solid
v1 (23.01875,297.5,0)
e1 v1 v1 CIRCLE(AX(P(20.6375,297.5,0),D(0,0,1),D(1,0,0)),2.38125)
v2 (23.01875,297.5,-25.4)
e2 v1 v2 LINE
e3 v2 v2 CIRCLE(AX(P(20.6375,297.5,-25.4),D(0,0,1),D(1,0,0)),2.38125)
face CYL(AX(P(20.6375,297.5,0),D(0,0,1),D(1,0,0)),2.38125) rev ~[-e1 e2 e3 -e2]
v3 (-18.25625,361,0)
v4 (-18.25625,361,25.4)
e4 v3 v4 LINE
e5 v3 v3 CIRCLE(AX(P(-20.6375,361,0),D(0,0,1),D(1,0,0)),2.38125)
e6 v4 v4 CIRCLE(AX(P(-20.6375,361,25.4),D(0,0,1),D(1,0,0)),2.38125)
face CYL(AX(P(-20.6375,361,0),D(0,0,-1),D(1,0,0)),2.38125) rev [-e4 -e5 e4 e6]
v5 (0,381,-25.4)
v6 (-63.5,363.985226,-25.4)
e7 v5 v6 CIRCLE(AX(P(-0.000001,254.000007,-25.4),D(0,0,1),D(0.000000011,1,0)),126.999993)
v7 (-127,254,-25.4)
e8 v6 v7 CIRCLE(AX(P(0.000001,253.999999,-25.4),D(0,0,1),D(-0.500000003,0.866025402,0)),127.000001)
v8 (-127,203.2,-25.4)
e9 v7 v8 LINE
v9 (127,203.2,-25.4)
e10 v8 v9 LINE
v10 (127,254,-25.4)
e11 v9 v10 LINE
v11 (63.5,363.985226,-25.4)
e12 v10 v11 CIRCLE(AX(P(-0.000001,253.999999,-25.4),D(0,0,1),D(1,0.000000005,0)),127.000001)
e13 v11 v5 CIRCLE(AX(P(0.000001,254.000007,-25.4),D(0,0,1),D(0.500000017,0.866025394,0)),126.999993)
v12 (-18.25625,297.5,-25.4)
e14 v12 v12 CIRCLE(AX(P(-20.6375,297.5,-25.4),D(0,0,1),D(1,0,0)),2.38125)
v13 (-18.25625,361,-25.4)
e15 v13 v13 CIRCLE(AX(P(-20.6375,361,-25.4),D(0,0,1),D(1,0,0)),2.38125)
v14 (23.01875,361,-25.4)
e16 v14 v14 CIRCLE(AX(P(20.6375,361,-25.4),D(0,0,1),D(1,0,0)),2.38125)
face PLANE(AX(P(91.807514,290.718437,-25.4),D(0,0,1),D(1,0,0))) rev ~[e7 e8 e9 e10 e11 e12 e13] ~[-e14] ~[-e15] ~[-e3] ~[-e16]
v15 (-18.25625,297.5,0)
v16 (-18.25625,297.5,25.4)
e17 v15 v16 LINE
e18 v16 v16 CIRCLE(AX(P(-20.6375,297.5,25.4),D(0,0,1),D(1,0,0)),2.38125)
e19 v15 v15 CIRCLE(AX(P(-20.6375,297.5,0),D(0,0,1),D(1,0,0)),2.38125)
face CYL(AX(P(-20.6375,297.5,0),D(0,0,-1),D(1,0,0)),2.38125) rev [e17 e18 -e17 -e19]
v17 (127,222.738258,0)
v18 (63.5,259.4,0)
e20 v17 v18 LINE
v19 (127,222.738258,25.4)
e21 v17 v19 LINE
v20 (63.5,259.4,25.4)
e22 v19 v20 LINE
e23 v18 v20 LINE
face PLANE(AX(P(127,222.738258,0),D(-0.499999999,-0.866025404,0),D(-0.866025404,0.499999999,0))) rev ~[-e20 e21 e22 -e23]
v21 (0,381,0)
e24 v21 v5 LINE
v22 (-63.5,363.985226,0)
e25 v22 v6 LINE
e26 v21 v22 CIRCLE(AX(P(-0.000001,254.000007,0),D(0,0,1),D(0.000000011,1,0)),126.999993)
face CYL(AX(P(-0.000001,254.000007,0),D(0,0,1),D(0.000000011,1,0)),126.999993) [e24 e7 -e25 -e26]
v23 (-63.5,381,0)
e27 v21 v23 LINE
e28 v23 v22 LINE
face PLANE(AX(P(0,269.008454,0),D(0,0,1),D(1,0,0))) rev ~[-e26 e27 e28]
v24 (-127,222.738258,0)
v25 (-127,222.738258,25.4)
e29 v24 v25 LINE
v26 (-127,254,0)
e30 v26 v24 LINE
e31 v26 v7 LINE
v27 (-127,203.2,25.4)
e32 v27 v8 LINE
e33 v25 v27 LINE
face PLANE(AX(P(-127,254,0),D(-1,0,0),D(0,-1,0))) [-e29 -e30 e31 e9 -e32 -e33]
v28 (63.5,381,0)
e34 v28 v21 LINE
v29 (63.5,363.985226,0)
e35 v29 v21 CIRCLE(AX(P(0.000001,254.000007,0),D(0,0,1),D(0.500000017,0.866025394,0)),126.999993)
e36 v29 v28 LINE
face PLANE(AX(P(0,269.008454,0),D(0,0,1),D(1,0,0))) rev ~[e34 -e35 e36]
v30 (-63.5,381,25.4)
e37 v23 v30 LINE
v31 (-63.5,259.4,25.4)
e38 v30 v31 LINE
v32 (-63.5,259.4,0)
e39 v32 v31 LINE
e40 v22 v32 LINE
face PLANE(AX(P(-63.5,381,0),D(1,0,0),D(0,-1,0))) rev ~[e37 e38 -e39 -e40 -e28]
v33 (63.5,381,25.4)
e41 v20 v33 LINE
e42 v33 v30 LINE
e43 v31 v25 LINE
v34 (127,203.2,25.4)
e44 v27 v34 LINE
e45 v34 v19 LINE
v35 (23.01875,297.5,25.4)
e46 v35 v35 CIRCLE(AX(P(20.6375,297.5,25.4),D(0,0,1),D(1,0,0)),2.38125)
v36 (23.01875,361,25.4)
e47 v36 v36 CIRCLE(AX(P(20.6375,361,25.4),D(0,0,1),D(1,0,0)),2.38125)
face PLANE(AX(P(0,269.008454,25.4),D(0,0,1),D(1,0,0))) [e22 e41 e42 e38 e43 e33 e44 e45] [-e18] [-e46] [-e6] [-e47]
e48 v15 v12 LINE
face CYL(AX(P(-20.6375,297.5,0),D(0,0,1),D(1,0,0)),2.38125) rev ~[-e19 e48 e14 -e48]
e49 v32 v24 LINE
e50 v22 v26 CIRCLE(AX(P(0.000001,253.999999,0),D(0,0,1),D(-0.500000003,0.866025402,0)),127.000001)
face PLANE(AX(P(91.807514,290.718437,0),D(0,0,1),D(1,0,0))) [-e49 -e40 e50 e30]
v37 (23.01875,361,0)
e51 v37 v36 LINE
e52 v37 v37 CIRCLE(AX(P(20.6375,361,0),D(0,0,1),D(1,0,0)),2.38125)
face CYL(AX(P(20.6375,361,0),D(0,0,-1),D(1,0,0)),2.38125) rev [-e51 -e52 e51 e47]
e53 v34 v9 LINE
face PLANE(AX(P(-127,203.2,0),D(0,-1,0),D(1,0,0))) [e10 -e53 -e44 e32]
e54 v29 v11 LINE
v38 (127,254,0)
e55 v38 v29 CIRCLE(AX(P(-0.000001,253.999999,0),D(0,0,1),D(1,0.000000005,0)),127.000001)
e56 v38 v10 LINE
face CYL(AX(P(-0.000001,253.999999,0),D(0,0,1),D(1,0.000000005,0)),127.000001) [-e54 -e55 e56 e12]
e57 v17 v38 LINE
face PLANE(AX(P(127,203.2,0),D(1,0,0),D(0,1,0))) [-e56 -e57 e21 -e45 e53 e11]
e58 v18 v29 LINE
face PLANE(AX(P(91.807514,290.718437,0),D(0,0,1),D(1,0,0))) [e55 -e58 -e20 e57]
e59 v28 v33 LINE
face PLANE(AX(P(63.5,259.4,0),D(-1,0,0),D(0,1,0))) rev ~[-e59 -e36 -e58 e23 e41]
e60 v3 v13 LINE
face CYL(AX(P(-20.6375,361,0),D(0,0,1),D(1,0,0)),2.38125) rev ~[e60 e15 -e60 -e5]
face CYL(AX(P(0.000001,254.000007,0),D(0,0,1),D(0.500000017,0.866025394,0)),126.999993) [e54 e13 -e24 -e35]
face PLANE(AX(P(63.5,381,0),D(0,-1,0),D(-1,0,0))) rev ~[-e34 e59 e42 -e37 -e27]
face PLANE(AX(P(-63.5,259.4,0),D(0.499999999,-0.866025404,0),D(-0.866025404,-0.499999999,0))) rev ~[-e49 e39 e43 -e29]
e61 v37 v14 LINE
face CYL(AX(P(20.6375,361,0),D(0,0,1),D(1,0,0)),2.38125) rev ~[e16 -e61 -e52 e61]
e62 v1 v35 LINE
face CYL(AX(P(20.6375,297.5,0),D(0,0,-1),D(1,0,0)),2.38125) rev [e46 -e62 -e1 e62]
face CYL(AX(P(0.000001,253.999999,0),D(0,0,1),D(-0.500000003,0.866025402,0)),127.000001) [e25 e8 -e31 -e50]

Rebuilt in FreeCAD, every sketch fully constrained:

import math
import FreeCAD as App
import Part
import Sketcher
Q = App.Units.Quantity

doc = App.newDocument("Part")
body = doc.addObject("PartDesign::Body", "Body")

# Sketch on XY plane
sketch1 = body.newObject("Sketcher::SketchObject", "Sketch")
sketch1.AttachmentSupport = (doc.getObject("XY_Plane"), [""])
sketch1.MapMode = "FlatFace"
sketch1.addGeometry([
    Part.LineSegment(App.Vector(-63.5, 381, 0), App.Vector(-63.5, 259.4, 0)),  # 0
    Part.LineSegment(App.Vector(-63.5, 259.4, 0), App.Vector(-127, 222.7, 0)),  # 1
    Part.LineSegment(App.Vector(-127, 222.7, 0), App.Vector(-127, 203.2, 0)),  # 2
    Part.LineSegment(App.Vector(-127, 203.2, 0), App.Vector(127, 203.2, 0)),  # 3
    Part.LineSegment(App.Vector(127, 203.2, 0), App.Vector(127, 222.7, 0)),  # 4
    Part.LineSegment(App.Vector(127, 222.7, 0), App.Vector(63.5, 259.4, 0)),  # 5
    Part.LineSegment(App.Vector(63.5, 259.4, 0), App.Vector(63.5, 381, 0)),  # 6
    Part.LineSegment(App.Vector(63.5, 381, 0), App.Vector(-63.5, 381, 0)),  # 7
    Part.Circle(App.Vector(-20.6, 297.5, 0), App.Vector(0, 0, 1), 2.4),  # 8
    Part.Circle(App.Vector(20.6, 297.5, 0), App.Vector(0, 0, 1), 2.4),  # 9
    Part.Circle(App.Vector(-20.6, 361, 0), App.Vector(0, 0, 1), 2.4),  # 10
    Part.Circle(App.Vector(20.6, 361, 0), App.Vector(0, 0, 1), 2.4),  # 11
], False)
sketch1.addConstraint([
    Sketcher.Constraint("Coincident", 0, 2, 1, 1),
    Sketcher.Constraint("Coincident", 1, 2, 2, 1),
    Sketcher.Constraint("Coincident", 2, 2, 3, 1),
    Sketcher.Constraint("Coincident", 3, 2, 4, 1),
    Sketcher.Constraint("Coincident", 4, 2, 5, 1),
    Sketcher.Constraint("Coincident", 5, 2, 6, 1),
    Sketcher.Constraint("Coincident", 6, 2, 7, 1),
    Sketcher.Constraint("Coincident", 7, 2, 0, 1),
    Sketcher.Constraint("Vertical", 0),
    Sketcher.Constraint("Vertical", 2),
    Sketcher.Constraint("Horizontal", 3),
    Sketcher.Constraint("Vertical", 4),
    Sketcher.Constraint("Vertical", 6),
    Sketcher.Constraint("Horizontal", 7),
    Sketcher.Constraint("Equal", 8, 9),
    Sketcher.Constraint("Equal", 9, 10),
    Sketcher.Constraint("Equal", 10, 11),
    Sketcher.Constraint("Symmetric", 8, 3, 9, 3, -2),
    Sketcher.Constraint("Symmetric", 10, 3, 11, 3, -2),
    Sketcher.Constraint("Symmetric", 1, 2, 4, 2, -2),
    Sketcher.Constraint("Symmetric", 0, 2, 5, 2, -2),
    Sketcher.Constraint("Vertical", 8, 3, 10, 3),
    Sketcher.Constraint("DistanceX", 3, 1, 3, 2, Q("10 in")),
    Sketcher.Constraint("DistanceX", 7, 2, 7, 1, Q("5 in")),
    Sketcher.Constraint("Diameter", 8, Q("0.1875 in")),
    Sketcher.Constraint("DistanceY", -1, 1, 2, 2, Q("8 in")),
    Sketcher.Constraint("DistanceY", -1, 1, 6, 2, Q("15 in")),
    Sketcher.Constraint("Angle", 1, Q("-150 deg")),
    Sketcher.Constraint("DistanceY", 0, 2, 10, 3, Q("4 in")),
    Sketcher.Constraint("DistanceY", 8, 3, 10, 3, Q("2.5 in")),
    Sketcher.Constraint("DistanceX", 8, 3, -1, 1, Q("0.8125 in")),
    Sketcher.Constraint("DistanceY", 0, 2, 0, 1, Q("121.6 mm")),
])
pad1 = body.newObject("PartDesign::Pad", "Pad")
pad1.Profile = sketch1
pad1.Length = Q("1 in")

# Sketch on XY plane
sketch2 = body.newObject("Sketcher::SketchObject", "Sketch001")
sketch2.AttachmentSupport = (doc.getObject("XY_Plane"), [""])
sketch2.MapMode = "FlatFace"
sketch2.addGeometry([
    Part.ArcOfCircle(Part.Circle(App.Vector(0, 254, 0), App.Vector(0, 0, 1), 127), math.radians(0), math.radians(60)),  # 0
    Part.ArcOfCircle(Part.Circle(App.Vector(0, 254, 0), App.Vector(0, 0, 1), 127), math.radians(60), math.radians(90)),  # 1
    Part.ArcOfCircle(Part.Circle(App.Vector(0, 254, 0), App.Vector(0, 0, 1), 127), math.radians(90), math.radians(120)),  # 2
    Part.ArcOfCircle(Part.Circle(App.Vector(0, 254, 0), App.Vector(0, 0, 1), 127), math.radians(120), math.radians(180)),  # 3
    Part.LineSegment(App.Vector(-127, 254, 0), App.Vector(-127, 203.2, 0)),  # 4
    Part.LineSegment(App.Vector(-127, 203.2, 0), App.Vector(127, 203.2, 0)),  # 5
    Part.LineSegment(App.Vector(127, 203.2, 0), App.Vector(127, 254, 0)),  # 6
    Part.Circle(App.Vector(-20.6, 297.5, 0), App.Vector(0, 0, 1), 2.4),  # 7
    Part.Circle(App.Vector(20.6, 297.5, 0), App.Vector(0, 0, 1), 2.4),  # 8
    Part.Circle(App.Vector(-20.6, 361, 0), App.Vector(0, 0, 1), 2.4),  # 9
    Part.Circle(App.Vector(20.6, 361, 0), App.Vector(0, 0, 1), 2.4),  # 10
], False)
sketch2.addConstraint([
    Sketcher.Constraint("Tangent", 0, 2, 1, 1),
    Sketcher.Constraint("Tangent", 1, 2, 2, 1),
    Sketcher.Constraint("Tangent", 2, 2, 3, 1),
    Sketcher.Constraint("Tangent", 3, 2, 4, 1),
    Sketcher.Constraint("Coincident", 4, 2, 5, 1),
    Sketcher.Constraint("Coincident", 5, 2, 6, 1),
    Sketcher.Constraint("Tangent", 6, 2, 0, 1),
    Sketcher.Constraint("Vertical", 4),
    Sketcher.Constraint("Horizontal", 5),
    Sketcher.Constraint("Vertical", 6),
    Sketcher.Constraint("Coincident", 2, 3, 0, 3),
    Sketcher.Constraint("Equal", 0, 3),
    Sketcher.Constraint("Equal", 7, 8),
    Sketcher.Constraint("Equal", 8, 9),
    Sketcher.Constraint("Equal", 9, 10),
    Sketcher.Constraint("Symmetric", 7, 3, 8, 3, -2),
    Sketcher.Constraint("Symmetric", 9, 3, 10, 3, -2),
    Sketcher.Constraint("Symmetric", 0, 2, 2, 2, -2),
    Sketcher.Constraint("PointOnObject", 1, 2, -2),
    Sketcher.Constraint("Vertical", 7, 3, 9, 3),
    Sketcher.Constraint("Radius", 0, Q("5 in")),
    Sketcher.Constraint("DistanceY", 4, 2, 4, 1, Q("2 in")),
    Sketcher.Constraint("Diameter", 7, Q("0.1875 in")),
    Sketcher.Constraint("DistanceY", -1, 1, 0, 3, Q("10 in")),
    Sketcher.Constraint("DistanceX", -1, 1, 0, 2, Q("2.5 in")),
    Sketcher.Constraint("DistanceY", 7, 3, 9, 3, Q("2.5 in")),
    Sketcher.Constraint("DistanceX", 7, 3, -1, 1, Q("0.8125 in")),
    Sketcher.Constraint("DistanceY", -1, 1, 7, 3, Q("297.5 mm")),
])
pad2 = body.newObject("PartDesign::Pad", "Pad001")
pad2.Profile = sketch2
pad2.Length = Q("1 in")
pad2.Reversed = True

doc.recompute()
